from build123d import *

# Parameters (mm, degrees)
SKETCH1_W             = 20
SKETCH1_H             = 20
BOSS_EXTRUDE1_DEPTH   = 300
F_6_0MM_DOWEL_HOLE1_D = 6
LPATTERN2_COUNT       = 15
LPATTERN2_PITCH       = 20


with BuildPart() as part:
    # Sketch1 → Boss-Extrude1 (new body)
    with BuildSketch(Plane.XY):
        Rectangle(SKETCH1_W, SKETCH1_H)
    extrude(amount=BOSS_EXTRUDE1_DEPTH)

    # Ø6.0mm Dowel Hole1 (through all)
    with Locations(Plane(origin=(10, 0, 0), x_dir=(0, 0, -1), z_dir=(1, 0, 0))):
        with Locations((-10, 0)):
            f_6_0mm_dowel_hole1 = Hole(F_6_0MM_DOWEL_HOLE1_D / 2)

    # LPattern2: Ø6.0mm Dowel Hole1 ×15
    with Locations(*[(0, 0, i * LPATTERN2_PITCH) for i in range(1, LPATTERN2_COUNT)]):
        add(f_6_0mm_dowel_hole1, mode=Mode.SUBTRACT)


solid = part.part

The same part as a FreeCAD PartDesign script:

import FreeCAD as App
import Part
import Sketcher

V = App.Vector
Q = App.Units.Quantity


def add_polygon(sketch, points):
    """Adds a closed chain of lines whose ends are joined by coincident constraints."""
    first, n = sketch.GeometryCount, len(points)
    for a, b in zip(points, points[1:] + points[:1]):
        sketch.addGeometry(Part.LineSegment(App.Vector(*a, 0), App.Vector(*b, 0)), False)
    for i in range(n):
        sketch.addConstraint(Sketcher.Constraint("Coincident", first + i, 2, first + (i + 1) % n, 1))

doc = App.newDocument("Part")
params = doc.addObject("Spreadsheet::Sheet", "Params")
for row, (alias, value) in enumerate([
    ("sketch1_width", "20 mm"),
    ("pad1_length", "300 mm"),
    ("sketch2_diameter", "6 mm"),
    ("hole_diameter", "6 mm"),
    ("linearpattern_pitch", "20 mm"),
], start=1):
    params.set(f"A{row}", alias)
    params.set(f"B{row}", "=" + value)
    params.setAlias(f"B{row}", alias)

body = doc.addObject("PartDesign::Body", "Body")

sketch1 = body.newObject("Sketcher::SketchObject", "Sketch")
sketch1.AttachmentSupport = (doc.getObject("XY_Plane"), [""])
sketch1.MapMode = "FlatFace"
add_polygon(sketch1, [(-10, 10), (-10, -10), (10, -10), (10, 10)])
sketch1.addConstraint([
    Sketcher.Constraint("Vertical", 0),
    Sketcher.Constraint("Horizontal", 1),
    Sketcher.Constraint("Vertical", 2),
    Sketcher.Constraint("Horizontal", 3),
    Sketcher.Constraint("Symmetric", 0, 2, 2, 2, -1, 1),
    Sketcher.Constraint("Equal", 3, 0),
    Sketcher.Constraint("DistanceX", 1, 1, 1, 2, Q("20 mm")),
])
sketch1.setExpression("Constraints[10]", "Params.sketch1_width")
pad1 = body.newObject("PartDesign::Pad", "Pad")
pad1.Profile = sketch1
pad1.setExpression("Length", "Params.pad1_length")

sketch2 = body.newObject("Sketcher::SketchObject", "Sketch001")
sketch2.AttachmentSupport = (doc.getObject("YZ_Plane"), [""])
sketch2.MapMode = "FlatFace"
sketch2.AttachmentOffset = App.Placement(V(0, 0, 10), App.Rotation())
sketch2.addGeometry(Part.Circle(V(0, 10, 0), V(0, 0, 1), 3), False)
sketch2.addConstraint([
    Sketcher.Constraint("PointOnObject", 0, 3, -2),
    Sketcher.Constraint("Diameter", 0, Q("6 mm")),
    Sketcher.Constraint("DistanceY", -1, 1, 0, 3, Q("10 mm")),
])
sketch2.setExpression("Constraints[1]", "Params.sketch2_diameter")
doc.recompute()
hole = body.newObject("PartDesign::Hole", "Hole")
hole.Profile = sketch2
hole.ThreadType = "None"
hole.setExpression("Diameter", "Params.hole_diameter")
hole.DepthType = "ThroughAll"
doc.recompute()

linearpattern = body.newObject("PartDesign::LinearPattern", "LinearPattern")
linearpattern.Originals = [hole]
linearpattern.Direction = (doc.getObject("Z_Axis"), [""])
linearpattern.Mode = "offset"
linearpattern.setExpression("Offset", "Params.linearpattern_pitch")
linearpattern.Occurrences = 15
body.Tip = linearpattern

doc.recompute()
